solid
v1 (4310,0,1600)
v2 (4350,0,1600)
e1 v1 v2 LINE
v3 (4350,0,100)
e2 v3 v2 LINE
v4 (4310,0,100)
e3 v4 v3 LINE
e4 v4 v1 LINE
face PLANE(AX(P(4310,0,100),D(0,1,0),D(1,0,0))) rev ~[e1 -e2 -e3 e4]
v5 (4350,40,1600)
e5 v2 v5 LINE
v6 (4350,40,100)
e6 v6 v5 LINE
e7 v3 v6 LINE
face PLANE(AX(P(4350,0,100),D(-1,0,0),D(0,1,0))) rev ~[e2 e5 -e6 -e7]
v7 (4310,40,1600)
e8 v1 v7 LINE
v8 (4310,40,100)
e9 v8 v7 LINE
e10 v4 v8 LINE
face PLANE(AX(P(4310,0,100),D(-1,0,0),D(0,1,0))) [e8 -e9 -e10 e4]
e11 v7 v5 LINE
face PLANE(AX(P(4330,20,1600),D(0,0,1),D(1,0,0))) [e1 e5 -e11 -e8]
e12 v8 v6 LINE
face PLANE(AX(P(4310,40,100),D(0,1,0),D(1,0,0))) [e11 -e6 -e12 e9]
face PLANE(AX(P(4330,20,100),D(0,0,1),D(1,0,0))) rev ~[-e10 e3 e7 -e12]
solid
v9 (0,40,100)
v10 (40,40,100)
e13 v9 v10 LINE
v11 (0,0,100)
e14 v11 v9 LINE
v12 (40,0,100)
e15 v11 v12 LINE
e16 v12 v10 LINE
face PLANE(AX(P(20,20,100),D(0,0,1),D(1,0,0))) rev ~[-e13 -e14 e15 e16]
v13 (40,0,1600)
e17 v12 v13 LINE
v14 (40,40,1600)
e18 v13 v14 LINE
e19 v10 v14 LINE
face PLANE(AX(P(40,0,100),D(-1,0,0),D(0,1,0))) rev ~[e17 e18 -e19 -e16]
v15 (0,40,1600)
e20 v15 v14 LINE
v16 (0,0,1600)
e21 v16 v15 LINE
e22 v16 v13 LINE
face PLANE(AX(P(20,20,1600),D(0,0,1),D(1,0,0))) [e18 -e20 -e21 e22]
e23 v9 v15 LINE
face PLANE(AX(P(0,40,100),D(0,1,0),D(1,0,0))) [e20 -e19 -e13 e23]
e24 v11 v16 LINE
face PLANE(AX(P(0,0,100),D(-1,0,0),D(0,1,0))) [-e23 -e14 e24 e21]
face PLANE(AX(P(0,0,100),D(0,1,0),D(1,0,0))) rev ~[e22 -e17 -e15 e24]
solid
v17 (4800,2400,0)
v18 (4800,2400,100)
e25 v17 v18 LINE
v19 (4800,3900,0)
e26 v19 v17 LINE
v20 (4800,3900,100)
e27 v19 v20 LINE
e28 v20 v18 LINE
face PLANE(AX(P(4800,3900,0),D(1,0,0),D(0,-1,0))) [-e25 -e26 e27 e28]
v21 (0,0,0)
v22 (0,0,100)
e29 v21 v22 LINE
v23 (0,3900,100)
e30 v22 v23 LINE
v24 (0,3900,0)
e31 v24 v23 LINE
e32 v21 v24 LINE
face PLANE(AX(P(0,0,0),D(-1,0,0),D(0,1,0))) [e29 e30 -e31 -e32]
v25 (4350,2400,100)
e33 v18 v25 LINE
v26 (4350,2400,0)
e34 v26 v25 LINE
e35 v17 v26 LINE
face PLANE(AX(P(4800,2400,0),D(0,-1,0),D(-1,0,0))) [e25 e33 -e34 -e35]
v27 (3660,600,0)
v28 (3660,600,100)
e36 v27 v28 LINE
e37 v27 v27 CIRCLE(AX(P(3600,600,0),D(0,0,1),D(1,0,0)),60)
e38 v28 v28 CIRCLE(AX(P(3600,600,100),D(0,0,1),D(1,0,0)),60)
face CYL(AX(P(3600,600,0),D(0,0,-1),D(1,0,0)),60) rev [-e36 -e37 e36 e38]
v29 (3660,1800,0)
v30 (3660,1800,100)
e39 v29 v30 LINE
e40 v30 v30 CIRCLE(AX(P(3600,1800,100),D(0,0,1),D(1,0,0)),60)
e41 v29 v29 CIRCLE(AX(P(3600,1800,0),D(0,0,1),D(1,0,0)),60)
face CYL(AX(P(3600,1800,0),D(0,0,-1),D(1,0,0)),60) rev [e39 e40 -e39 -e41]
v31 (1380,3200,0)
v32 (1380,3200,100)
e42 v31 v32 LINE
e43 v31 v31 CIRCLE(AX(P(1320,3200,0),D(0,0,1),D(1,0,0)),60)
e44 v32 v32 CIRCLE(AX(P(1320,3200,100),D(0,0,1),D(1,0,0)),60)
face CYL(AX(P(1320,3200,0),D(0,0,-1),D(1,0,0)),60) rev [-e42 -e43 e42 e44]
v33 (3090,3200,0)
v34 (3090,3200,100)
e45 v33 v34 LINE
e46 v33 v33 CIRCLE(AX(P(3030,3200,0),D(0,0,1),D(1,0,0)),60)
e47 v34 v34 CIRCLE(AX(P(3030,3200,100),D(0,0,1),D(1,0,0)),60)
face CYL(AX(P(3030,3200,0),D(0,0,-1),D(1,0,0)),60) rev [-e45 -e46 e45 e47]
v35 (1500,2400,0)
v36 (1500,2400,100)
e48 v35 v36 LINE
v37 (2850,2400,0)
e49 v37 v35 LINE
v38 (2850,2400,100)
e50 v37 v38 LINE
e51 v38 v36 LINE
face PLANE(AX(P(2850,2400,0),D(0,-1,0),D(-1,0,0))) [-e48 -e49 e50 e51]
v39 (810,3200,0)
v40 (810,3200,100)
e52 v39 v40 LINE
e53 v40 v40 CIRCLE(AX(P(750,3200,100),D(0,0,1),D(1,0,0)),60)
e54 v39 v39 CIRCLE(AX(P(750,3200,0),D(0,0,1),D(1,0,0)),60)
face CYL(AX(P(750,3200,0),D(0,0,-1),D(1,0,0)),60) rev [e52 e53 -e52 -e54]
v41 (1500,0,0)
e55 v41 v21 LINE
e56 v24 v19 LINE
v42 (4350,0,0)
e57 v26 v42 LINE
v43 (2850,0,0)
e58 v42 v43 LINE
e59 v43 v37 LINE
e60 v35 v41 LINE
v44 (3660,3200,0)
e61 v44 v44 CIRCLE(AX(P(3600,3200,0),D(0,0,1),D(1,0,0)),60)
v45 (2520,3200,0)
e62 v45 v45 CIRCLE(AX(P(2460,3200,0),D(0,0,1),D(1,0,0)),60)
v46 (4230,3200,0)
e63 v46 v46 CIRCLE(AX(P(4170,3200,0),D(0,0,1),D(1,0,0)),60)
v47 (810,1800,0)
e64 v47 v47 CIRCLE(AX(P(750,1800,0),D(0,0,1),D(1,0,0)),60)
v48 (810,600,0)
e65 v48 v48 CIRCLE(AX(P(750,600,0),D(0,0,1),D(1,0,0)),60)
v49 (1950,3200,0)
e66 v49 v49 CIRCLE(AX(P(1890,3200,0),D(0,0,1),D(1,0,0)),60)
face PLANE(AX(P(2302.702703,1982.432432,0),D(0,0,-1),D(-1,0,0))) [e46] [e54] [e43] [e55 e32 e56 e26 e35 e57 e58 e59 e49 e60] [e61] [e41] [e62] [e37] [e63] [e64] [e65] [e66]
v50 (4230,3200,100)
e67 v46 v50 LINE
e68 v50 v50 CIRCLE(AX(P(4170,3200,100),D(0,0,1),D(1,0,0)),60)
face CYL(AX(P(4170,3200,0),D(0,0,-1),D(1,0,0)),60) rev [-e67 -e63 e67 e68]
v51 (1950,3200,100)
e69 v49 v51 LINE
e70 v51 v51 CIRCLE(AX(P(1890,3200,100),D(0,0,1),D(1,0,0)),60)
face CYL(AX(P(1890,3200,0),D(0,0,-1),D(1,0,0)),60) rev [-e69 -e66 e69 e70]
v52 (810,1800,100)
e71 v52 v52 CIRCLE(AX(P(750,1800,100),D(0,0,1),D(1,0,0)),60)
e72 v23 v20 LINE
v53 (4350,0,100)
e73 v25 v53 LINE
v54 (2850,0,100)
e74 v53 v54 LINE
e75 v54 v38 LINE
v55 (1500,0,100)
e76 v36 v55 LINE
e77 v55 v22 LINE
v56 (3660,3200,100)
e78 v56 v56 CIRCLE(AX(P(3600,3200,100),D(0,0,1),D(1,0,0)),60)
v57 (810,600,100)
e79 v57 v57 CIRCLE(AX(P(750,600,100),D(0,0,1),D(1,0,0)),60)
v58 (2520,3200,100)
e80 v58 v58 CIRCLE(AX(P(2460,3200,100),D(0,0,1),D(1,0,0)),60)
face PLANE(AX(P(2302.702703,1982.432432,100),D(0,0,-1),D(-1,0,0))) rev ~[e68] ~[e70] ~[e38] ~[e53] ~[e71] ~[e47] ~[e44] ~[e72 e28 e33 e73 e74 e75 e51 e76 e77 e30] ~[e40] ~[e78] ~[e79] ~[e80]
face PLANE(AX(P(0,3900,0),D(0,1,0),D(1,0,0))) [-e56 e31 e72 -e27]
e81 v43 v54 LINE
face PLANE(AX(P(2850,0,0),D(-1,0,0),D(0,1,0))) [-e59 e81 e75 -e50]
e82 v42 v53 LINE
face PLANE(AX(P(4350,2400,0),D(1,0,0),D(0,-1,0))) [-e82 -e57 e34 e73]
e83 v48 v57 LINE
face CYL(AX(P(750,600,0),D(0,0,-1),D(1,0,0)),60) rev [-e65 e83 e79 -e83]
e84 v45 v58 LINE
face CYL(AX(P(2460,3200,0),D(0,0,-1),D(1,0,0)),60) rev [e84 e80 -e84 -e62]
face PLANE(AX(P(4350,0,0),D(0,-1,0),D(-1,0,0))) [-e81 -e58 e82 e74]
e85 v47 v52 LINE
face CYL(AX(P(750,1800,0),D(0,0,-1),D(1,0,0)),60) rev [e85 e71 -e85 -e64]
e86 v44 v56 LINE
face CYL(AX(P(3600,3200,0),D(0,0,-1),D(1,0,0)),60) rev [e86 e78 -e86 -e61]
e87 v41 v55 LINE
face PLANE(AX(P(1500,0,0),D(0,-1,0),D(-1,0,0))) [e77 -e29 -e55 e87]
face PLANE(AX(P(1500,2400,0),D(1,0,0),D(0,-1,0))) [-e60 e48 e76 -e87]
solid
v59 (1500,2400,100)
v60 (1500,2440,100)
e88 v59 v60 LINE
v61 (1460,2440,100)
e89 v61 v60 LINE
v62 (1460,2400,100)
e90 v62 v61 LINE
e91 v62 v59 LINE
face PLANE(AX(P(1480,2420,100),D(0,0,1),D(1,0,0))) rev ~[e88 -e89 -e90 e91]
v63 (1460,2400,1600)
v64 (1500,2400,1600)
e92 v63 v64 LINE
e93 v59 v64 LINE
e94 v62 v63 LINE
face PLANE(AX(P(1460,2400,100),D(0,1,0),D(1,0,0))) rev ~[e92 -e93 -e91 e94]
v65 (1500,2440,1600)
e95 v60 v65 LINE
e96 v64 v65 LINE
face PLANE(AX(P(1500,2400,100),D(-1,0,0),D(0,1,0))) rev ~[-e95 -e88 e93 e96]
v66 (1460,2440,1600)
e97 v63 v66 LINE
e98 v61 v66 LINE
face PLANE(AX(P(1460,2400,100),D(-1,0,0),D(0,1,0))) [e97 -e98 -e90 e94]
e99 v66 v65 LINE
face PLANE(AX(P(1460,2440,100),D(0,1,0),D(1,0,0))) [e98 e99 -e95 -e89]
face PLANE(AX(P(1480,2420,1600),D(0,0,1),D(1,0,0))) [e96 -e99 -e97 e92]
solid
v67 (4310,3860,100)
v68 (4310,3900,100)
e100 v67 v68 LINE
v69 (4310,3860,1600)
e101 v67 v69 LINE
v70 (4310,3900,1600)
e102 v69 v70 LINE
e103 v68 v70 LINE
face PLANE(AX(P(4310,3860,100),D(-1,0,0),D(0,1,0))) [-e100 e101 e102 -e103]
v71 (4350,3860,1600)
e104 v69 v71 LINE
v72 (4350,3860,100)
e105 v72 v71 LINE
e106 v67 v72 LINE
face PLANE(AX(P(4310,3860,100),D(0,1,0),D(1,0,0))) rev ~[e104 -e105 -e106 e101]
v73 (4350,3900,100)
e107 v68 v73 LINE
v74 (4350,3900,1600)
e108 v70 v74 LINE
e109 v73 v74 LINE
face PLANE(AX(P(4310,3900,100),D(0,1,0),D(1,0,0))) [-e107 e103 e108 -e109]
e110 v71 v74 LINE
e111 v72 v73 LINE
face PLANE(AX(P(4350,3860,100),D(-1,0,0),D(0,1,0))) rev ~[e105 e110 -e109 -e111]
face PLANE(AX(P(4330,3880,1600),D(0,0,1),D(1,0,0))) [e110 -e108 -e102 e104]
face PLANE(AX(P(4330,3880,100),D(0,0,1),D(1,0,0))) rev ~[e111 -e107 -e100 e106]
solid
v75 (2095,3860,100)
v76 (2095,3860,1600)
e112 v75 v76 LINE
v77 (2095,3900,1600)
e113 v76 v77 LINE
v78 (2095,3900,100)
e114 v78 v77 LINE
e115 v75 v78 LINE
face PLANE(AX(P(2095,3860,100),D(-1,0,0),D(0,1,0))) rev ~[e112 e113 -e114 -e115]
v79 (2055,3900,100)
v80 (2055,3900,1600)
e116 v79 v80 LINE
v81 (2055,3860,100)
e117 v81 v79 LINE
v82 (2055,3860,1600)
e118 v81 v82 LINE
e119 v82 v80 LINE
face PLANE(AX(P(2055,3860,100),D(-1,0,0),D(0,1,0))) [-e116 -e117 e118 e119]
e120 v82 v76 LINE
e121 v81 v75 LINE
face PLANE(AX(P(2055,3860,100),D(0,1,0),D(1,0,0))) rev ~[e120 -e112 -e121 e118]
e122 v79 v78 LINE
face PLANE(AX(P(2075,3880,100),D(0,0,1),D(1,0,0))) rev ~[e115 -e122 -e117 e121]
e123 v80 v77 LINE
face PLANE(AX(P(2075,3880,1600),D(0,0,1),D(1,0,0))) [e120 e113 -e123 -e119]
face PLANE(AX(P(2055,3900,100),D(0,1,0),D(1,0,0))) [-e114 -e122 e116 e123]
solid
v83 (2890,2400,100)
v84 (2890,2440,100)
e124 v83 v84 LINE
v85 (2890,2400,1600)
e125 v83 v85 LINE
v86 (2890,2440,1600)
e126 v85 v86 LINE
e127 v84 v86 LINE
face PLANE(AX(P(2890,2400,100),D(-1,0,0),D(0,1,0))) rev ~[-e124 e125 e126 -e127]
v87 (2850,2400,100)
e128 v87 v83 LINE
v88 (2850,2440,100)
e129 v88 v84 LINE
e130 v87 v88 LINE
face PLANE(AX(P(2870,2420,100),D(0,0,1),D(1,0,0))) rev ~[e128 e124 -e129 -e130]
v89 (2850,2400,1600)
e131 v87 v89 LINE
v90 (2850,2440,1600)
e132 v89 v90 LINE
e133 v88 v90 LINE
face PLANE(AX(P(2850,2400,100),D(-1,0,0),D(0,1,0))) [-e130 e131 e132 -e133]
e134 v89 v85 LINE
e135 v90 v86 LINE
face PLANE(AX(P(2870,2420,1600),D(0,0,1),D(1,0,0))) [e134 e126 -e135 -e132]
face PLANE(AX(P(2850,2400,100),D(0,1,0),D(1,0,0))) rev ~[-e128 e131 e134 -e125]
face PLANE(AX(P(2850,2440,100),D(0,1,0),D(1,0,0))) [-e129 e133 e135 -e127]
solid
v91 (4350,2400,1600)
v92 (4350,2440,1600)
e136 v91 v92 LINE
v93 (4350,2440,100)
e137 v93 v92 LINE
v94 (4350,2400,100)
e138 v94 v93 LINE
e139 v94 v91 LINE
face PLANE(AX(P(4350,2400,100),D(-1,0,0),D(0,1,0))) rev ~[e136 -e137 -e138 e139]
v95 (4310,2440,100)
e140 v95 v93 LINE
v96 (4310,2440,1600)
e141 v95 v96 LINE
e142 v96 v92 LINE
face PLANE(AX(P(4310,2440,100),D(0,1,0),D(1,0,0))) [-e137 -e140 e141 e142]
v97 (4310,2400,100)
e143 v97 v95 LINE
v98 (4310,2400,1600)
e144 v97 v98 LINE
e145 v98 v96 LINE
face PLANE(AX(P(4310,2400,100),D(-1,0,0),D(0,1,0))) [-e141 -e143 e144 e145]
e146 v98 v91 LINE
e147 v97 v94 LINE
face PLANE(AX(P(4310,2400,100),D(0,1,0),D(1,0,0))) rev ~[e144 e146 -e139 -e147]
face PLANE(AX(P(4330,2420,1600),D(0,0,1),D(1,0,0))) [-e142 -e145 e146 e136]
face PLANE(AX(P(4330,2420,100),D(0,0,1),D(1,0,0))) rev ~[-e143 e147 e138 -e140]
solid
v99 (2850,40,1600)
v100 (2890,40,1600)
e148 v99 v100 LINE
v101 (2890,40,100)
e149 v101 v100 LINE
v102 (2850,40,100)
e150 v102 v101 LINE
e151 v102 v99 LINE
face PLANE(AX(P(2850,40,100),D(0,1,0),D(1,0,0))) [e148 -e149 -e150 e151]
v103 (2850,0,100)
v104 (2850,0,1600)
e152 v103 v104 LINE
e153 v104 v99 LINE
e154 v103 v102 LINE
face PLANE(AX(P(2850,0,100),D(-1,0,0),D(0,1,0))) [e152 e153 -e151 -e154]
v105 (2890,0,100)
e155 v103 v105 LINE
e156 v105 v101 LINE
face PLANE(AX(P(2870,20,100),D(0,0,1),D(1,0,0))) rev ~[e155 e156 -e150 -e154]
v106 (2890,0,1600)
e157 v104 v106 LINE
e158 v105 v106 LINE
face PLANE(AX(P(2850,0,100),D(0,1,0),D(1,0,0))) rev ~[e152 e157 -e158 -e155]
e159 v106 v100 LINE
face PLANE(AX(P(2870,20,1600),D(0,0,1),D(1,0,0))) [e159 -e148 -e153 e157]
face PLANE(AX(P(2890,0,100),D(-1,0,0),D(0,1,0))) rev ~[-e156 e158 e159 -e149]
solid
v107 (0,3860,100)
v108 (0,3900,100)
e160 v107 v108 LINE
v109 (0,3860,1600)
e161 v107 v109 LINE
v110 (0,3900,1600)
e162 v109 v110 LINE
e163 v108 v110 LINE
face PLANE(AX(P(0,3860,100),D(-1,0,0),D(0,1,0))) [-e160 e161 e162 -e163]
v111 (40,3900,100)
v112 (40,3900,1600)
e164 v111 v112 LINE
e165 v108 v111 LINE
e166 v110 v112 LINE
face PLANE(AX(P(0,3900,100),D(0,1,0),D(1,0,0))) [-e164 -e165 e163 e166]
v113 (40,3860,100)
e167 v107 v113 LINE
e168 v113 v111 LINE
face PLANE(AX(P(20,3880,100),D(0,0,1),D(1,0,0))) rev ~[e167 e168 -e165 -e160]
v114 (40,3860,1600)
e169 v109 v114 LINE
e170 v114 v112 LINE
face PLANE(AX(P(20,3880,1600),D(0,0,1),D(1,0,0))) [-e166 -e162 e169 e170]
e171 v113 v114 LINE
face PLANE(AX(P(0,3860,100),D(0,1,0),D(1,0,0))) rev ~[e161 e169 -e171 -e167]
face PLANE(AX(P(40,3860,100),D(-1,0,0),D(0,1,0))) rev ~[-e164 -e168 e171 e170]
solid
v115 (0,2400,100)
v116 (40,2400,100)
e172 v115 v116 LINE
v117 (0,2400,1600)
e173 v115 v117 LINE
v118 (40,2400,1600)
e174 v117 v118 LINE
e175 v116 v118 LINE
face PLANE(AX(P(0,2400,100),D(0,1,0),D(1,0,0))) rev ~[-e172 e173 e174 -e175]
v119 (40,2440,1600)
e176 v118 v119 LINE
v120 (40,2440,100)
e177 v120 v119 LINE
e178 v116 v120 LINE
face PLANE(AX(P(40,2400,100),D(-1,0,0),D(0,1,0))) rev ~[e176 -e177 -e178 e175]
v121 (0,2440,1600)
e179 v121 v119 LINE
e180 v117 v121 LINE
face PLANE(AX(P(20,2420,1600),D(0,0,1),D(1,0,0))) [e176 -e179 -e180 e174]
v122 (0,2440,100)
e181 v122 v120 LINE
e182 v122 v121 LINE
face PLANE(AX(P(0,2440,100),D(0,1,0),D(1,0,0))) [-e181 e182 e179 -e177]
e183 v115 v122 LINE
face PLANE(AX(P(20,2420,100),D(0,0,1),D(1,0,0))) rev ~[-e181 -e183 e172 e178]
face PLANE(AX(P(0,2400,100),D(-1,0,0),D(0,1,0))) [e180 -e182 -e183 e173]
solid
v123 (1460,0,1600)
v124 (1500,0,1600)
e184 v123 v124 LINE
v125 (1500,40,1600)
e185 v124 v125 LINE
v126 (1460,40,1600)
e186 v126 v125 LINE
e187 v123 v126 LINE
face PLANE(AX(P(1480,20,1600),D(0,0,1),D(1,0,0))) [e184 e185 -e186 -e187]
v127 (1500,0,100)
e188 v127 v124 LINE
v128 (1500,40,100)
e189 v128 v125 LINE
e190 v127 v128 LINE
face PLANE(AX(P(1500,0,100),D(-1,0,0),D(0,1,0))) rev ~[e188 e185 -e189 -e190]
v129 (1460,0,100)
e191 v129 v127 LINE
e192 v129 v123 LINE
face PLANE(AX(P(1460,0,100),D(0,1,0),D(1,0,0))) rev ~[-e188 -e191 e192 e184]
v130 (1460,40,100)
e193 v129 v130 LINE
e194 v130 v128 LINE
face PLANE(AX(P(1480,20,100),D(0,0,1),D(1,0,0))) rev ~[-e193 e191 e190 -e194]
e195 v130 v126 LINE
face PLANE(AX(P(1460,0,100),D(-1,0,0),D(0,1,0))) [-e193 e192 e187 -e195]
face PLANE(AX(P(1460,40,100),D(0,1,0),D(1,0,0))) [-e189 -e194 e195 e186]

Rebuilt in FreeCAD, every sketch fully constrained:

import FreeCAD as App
import Part
import Sketcher

doc = App.newDocument("Part")
body = doc.addObject("PartDesign::Body", "Body")

sketch1 = body.newObject("Sketcher::SketchObject", "Sketch")
sketch1.AttachmentSupport = (doc.getObject("XY_Plane"), [""])
sketch1.MapMode = "FlatFace"
sketch1.addGeometry(Part.LineSegment(App.Vector(0, 3900, 0), App.Vector(0, 0, 0)), False)
sketch1.addGeometry(Part.LineSegment(App.Vector(0, 0, 0), App.Vector(1500, 0, 0)), False)
sketch1.addGeometry(Part.LineSegment(App.Vector(1500, 0, 0), App.Vector(1500, 2400, 0)), False)
sketch1.addGeometry(Part.LineSegment(App.Vector(1500, 2400, 0), App.Vector(2850, 2400, 0)), False)
sketch1.addGeometry(Part.LineSegment(App.Vector(2850, 2400, 0), App.Vector(2850, 0, 0)), False)
sketch1.addGeometry(Part.LineSegment(App.Vector(2850, 0, 0), App.Vector(4350, 0, 0)), False)
sketch1.addGeometry(Part.LineSegment(App.Vector(4350, 0, 0), App.Vector(4350, 2400, 0)), False)
sketch1.addGeometry(Part.LineSegment(App.Vector(4350, 2400, 0), App.Vector(4800, 2400, 0)), False)
sketch1.addGeometry(Part.LineSegment(App.Vector(4800, 2400, 0), App.Vector(4800, 3900, 0)), False)
sketch1.addGeometry(Part.LineSegment(App.Vector(4800, 3900, 0), App.Vector(0, 3900, 0)), False)
sketch1.addGeometry(Part.Circle(App.Vector(3600, 600, 0), App.Vector(0, 0, 1), 60), False)
sketch1.addGeometry(Part.Circle(App.Vector(3600, 1800, 0), App.Vector(0, 0, 1), 60), False)
sketch1.addGeometry(Part.Circle(App.Vector(750, 600, 0), App.Vector(0, 0, 1), 60), False)
sketch1.addGeometry(Part.Circle(App.Vector(750, 1800, 0), App.Vector(0, 0, 1), 60), False)
sketch1.addGeometry(Part.Circle(App.Vector(4170, 3200, 0), App.Vector(0, 0, 1), 60), False)
sketch1.addGeometry(Part.Circle(App.Vector(3600, 3200, 0), App.Vector(0, 0, 1), 60), False)
sketch1.addGeometry(Part.Circle(App.Vector(3030, 3200, 0), App.Vector(0, 0, 1), 60), False)
sketch1.addGeometry(Part.Circle(App.Vector(2460, 3200, 0), App.Vector(0, 0, 1), 60), False)
sketch1.addGeometry(Part.Circle(App.Vector(1890, 3200, 0), App.Vector(0, 0, 1), 60), False)
sketch1.addGeometry(Part.Circle(App.Vector(1320, 3200, 0), App.Vector(0, 0, 1), 60), False)
sketch1.addGeometry(Part.Circle(App.Vector(750, 3200, 0), App.Vector(0, 0, 1), 60), False)
sketch1.addConstraint(Sketcher.Constraint("Coincident", 0, 2, 1, 1))
sketch1.addConstraint(Sketcher.Constraint("Coincident", 1, 2, 2, 1))
sketch1.addConstraint(Sketcher.Constraint("Coincident", 2, 2, 3, 1))
sketch1.addConstraint(Sketcher.Constraint("Coincident", 3, 2, 4, 1))
sketch1.addConstraint(Sketcher.Constraint("Coincident", 4, 2, 5, 1))
sketch1.addConstraint(Sketcher.Constraint("Coincident", 5, 2, 6, 1))
sketch1.addConstraint(Sketcher.Constraint("Coincident", 6, 2, 7, 1))
sketch1.addConstraint(Sketcher.Constraint("Coincident", 7, 2, 8, 1))
sketch1.addConstraint(Sketcher.Constraint("Coincident", 8, 2, 9, 1))
sketch1.addConstraint(Sketcher.Constraint("Coincident", 9, 2, 0, 1))
sketch1.addConstraint(Sketcher.Constraint("Vertical", 0))
sketch1.addConstraint(Sketcher.Constraint("Horizontal", 1))
sketch1.addConstraint(Sketcher.Constraint("Vertical", 2))
sketch1.addConstraint(Sketcher.Constraint("Horizontal", 3))
sketch1.addConstraint(Sketcher.Constraint("Vertical", 4))
sketch1.addConstraint(Sketcher.Constraint("Horizontal", 5))
sketch1.addConstraint(Sketcher.Constraint("Vertical", 6))
sketch1.addConstraint(Sketcher.Constraint("Horizontal", 7))
sketch1.addConstraint(Sketcher.Constraint("Vertical", 8))
sketch1.addConstraint(Sketcher.Constraint("Horizontal", 9))
sketch1.addConstraint(Sketcher.Constraint("Coincident", 0, 2, -1, 1))
sketch1.addConstraint(Sketcher.Constraint("Equal", 10, 11))
sketch1.addConstraint(Sketcher.Constraint("Equal", 11, 12))
sketch1.addConstraint(Sketcher.Constraint("Equal", 12, 13))
sketch1.addConstraint(Sketcher.Constraint("Equal", 13, 14))
sketch1.addConstraint(Sketcher.Constraint("Equal", 14, 15))
sketch1.addConstraint(Sketcher.Constraint("Equal", 15, 16))
sketch1.addConstraint(Sketcher.Constraint("Equal", 16, 17))
sketch1.addConstraint(Sketcher.Constraint("Equal", 17, 18))
sketch1.addConstraint(Sketcher.Constraint("Equal", 18, 19))
sketch1.addConstraint(Sketcher.Constraint("Equal", 19, 20))
sketch1.addConstraint(Sketcher.Constraint("PointOnObject", 4, 2, -1))
sketch1.addConstraint(Sketcher.Constraint("Horizontal", 10, 3, 12, 3))
sketch1.addConstraint(Sketcher.Constraint("Horizontal", 11, 3, 13, 3))
sketch1.addConstraint(Sketcher.Constraint("Horizontal", 14, 3, 15, 3))
sketch1.addConstraint(Sketcher.Constraint("Horizontal", 15, 3, 16, 3))
sketch1.addConstraint(Sketcher.Constraint("Horizontal", 16, 3, 17, 3))
sketch1.addConstraint(Sketcher.Constraint("Horizontal", 17, 3, 18, 3))
sketch1.addConstraint(Sketcher.Constraint("Horizontal", 18, 3, 19, 3))
sketch1.addConstraint(Sketcher.Constraint("Horizontal", 19, 3, 20, 3))
sketch1.addConstraint(Sketcher.Constraint("Horizontal", 3, 2, 6, 2))
sketch1.addConstraint(Sketcher.Constraint("Vertical", 10, 3, 11, 3))
sketch1.addConstraint(Sketcher.Constraint("Vertical", 12, 3, 13, 3))
sketch1.addConstraint(Sketcher.Constraint("Vertical", 11, 3, 15, 3))
sketch1.addConstraint(Sketcher.Constraint("Vertical", 13, 3, 20, 3))
sketch1.addConstraint(Sketcher.Constraint("Equal", 1, 5))
sketch1.addConstraint(Sketcher.Constraint("Equal", 5, 8))
sketch1.addConstraint(Sketcher.Constraint("Diameter", 10, 120.0))
sketch1.addConstraint(Sketcher.Constraint("DistanceX", 1, 1, 1, 2, 1500.0))
sketch1.addConstraint(Sketcher.Constraint("DistanceX", 3, 1, 3, 2, 1350.0))
sketch1.addConstraint(Sketcher.Constraint("DistanceX", 7, 1, 7, 2, 450.0))
sketch1.addConstraint(Sketcher.Constraint("DistanceY", 0, 2, 0, 1, 3900.0))
sketch1.addConstraint(Sketcher.Constraint("DistanceX", -1, 1, 10, 3, 3600.0))
sketch1.addConstraint(Sketcher.Constraint("DistanceY", -1, 1, 10, 3, 600.0))
sketch1.addConstraint(Sketcher.Constraint("DistanceY", -1, 1, 11, 3, 1800.0))
sketch1.addConstraint(Sketcher.Constraint("DistanceX", -1, 1, 12, 3, 750.0))
sketch1.addConstraint(Sketcher.Constraint("DistanceX", -1, 1, 14, 3, 4170.0))
sketch1.addConstraint(Sketcher.Constraint("DistanceY", -1, 1, 14, 3, 3200.0))
sketch1.addConstraint(Sketcher.Constraint("DistanceX", -1, 1, 16, 3, 3030.0))
sketch1.addConstraint(Sketcher.Constraint("DistanceX", -1, 1, 17, 3, 2460.0))
sketch1.addConstraint(Sketcher.Constraint("DistanceX", -1, 1, 18, 3, 1890.0))
sketch1.addConstraint(Sketcher.Constraint("DistanceX", -1, 1, 19, 3, 1320.0))
pad1 = body.newObject("PartDesign::Pad", "Pad")
pad1.Profile = sketch1
pad1.Length = 100
body2 = doc.addObject("PartDesign::Body", "Body001")

sketch2 = body2.newObject("Sketcher::SketchObject", "Sketch001")
sketch2.AttachmentSupport = (doc.getObject("XY_Plane001"), [""])
sketch2.MapMode = "FlatFace"
sketch2.AttachmentOffset = App.Placement(App.Vector(0, 0, 100), App.Rotation())
sketch2.addGeometry(Part.LineSegment(App.Vector(2850, 2440, 0), App.Vector(2850, 2400, 0)), False)
sketch2.addGeometry(Part.LineSegment(App.Vector(2850, 2400, 0), App.Vector(2890, 2400, 0)), False)
sketch2.addGeometry(Part.LineSegment(App.Vector(2890, 2400, 0), App.Vector(2890, 2440, 0)), False)
sketch2.addGeometry(Part.LineSegment(App.Vector(2890, 2440, 0), App.Vector(2850, 2440, 0)), False)
sketch2.addConstraint(Sketcher.Constraint("Coincident", 0, 2, 1, 1))
sketch2.addConstraint(Sketcher.Constraint("Coincident", 1, 2, 2, 1))
sketch2.addConstraint(Sketcher.Constraint("Coincident", 2, 2, 3, 1))
sketch2.addConstraint(Sketcher.Constraint("Coincident", 3, 2, 0, 1))
sketch2.addConstraint(Sketcher.Constraint("Vertical", 0))
sketch2.addConstraint(Sketcher.Constraint("Horizontal", 1))
sketch2.addConstraint(Sketcher.Constraint("Vertical", 2))
sketch2.addConstraint(Sketcher.Constraint("Horizontal", 3))
sketch2.addConstraint(Sketcher.Constraint("Equal", 3, 0))
sketch2.addConstraint(Sketcher.Constraint("DistanceX", 1, 1, 1, 2, 40.0))
sketch2.addConstraint(Sketcher.Constraint("DistanceX", -1, 1, 0, 2, 2850.0))
sketch2.addConstraint(Sketcher.Constraint("DistanceY", -1, 1, 0, 2, 2400.0))
pad2 = body2.newObject("PartDesign::Pad", "Pad001")
pad2.Profile = sketch2
pad2.Length = 1500
body3 = doc.addObject("PartDesign::Body", "Body002")

sketch3 = body3.newObject("Sketcher::SketchObject", "Sketch002")
sketch3.AttachmentSupport = (doc.getObject("XY_Plane002"), [""])
sketch3.MapMode = "FlatFace"
sketch3.AttachmentOffset = App.Placement(App.Vector(0, 0, 100), App.Rotation())
sketch3.addGeometry(Part.LineSegment(App.Vector(0, 3900, 0), App.Vector(0, 3860, 0)), False)
sketch3.addGeometry(Part.LineSegment(App.Vector(0, 3860, 0), App.Vector(40, 3860, 0)), False)
sketch3.addGeometry(Part.LineSegment(App.Vector(40, 3860, 0), App.Vector(40, 3900, 0)), False)
sketch3.addGeometry(Part.LineSegment(App.Vector(40, 3900, 0), App.Vector(0, 3900, 0)), False)
sketch3.addConstraint(Sketcher.Constraint("Coincident", 0, 2, 1, 1))
sketch3.addConstraint(Sketcher.Constraint("Coincident", 1, 2, 2, 1))
sketch3.addConstraint(Sketcher.Constraint("Coincident", 2, 2, 3, 1))
sketch3.addConstraint(Sketcher.Constraint("Coincident", 3, 2, 0, 1))
sketch3.addConstraint(Sketcher.Constraint("Vertical", 0))
sketch3.addConstraint(Sketcher.Constraint("Horizontal", 1))
sketch3.addConstraint(Sketcher.Constraint("Vertical", 2))
sketch3.addConstraint(Sketcher.Constraint("Horizontal", 3))
sketch3.addConstraint(Sketcher.Constraint("PointOnObject", 0, 2, -2))
sketch3.addConstraint(Sketcher.Constraint("Equal", 3, 0))
sketch3.addConstraint(Sketcher.Constraint("DistanceX", 1, 1, 1, 2, 40.0))
sketch3.addConstraint(Sketcher.Constraint("DistanceY", -1, 1, 0, 2, 3860.0))
pad3 = body3.newObject("PartDesign::Pad", "Pad002")
pad3.Profile = sketch3
pad3.Length = 1500
body4 = doc.addObject("PartDesign::Body", "Body003")

sketch4 = body4.newObject("Sketcher::SketchObject", "Sketch003")
sketch4.AttachmentSupport = (doc.getObject("XY_Plane003"), [""])
sketch4.MapMode = "FlatFace"
sketch4.AttachmentOffset = App.Placement(App.Vector(0, 0, 100), App.Rotation())
sketch4.addGeometry(Part.LineSegment(App.Vector(0, 40, 0), App.Vector(0, 0, 0)), False)
sketch4.addGeometry(Part.LineSegment(App.Vector(0, 0, 0), App.Vector(40, 0, 0)), False)
sketch4.addGeometry(Part.LineSegment(App.Vector(40, 0, 0), App.Vector(40, 40, 0)), False)
sketch4.addGeometry(Part.LineSegment(App.Vector(40, 40, 0), App.Vector(0, 40, 0)), False)
sketch4.addConstraint(Sketcher.Constraint("Coincident", 0, 2, 1, 1))
sketch4.addConstraint(Sketcher.Constraint("Coincident", 1, 2, 2, 1))
sketch4.addConstraint(Sketcher.Constraint("Coincident", 2, 2, 3, 1))
sketch4.addConstraint(Sketcher.Constraint("Coincident", 3, 2, 0, 1))
sketch4.addConstraint(Sketcher.Constraint("Vertical", 0))
sketch4.addConstraint(Sketcher.Constraint("Horizontal", 1))
sketch4.addConstraint(Sketcher.Constraint("Vertical", 2))
sketch4.addConstraint(Sketcher.Constraint("Horizontal", 3))
sketch4.addConstraint(Sketcher.Constraint("Coincident", 0, 2, -1, 1))
sketch4.addConstraint(Sketcher.Constraint("Equal", 3, 0))
sketch4.addConstraint(Sketcher.Constraint("DistanceX", 1, 1, 1, 2, 40.0))
pad4 = body4.newObject("PartDesign::Pad", "Pad003")
pad4.Profile = sketch4
pad4.Length = 1500
body5 = doc.addObject("PartDesign::Body", "Body004")

sketch5 = body5.newObject("Sketcher::SketchObject", "Sketch004")
sketch5.AttachmentSupport = (doc.getObject("XY_Plane004"), [""])
sketch5.MapMode = "FlatFace"
sketch5.AttachmentOffset = App.Placement(App.Vector(0, 0, 100), App.Rotation())
sketch5.addGeometry(Part.LineSegment(App.Vector(1460, 40, 0), App.Vector(1460, 0, 0)), False)
sketch5.addGeometry(Part.LineSegment(App.Vector(1460, 0, 0), App.Vector(1500, 0, 0)), False)
sketch5.addGeometry(Part.LineSegment(App.Vector(1500, 0, 0), App.Vector(1500, 40, 0)), False)
sketch5.addGeometry(Part.LineSegment(App.Vector(1500, 40, 0), App.Vector(1460, 40, 0)), False)
sketch5.addConstraint(Sketcher.Constraint("Coincident", 0, 2, 1, 1))
sketch5.addConstraint(Sketcher.Constraint("Coincident", 1, 2, 2, 1))
sketch5.addConstraint(Sketcher.Constraint("Coincident", 2, 2, 3, 1))
sketch5.addConstraint(Sketcher.Constraint("Coincident", 3, 2, 0, 1))
sketch5.addConstraint(Sketcher.Constraint("Vertical", 0))
sketch5.addConstraint(Sketcher.Constraint("Horizontal", 1))
sketch5.addConstraint(Sketcher.Constraint("Vertical", 2))
sketch5.addConstraint(Sketcher.Constraint("Horizontal", 3))
sketch5.addConstraint(Sketcher.Constraint("PointOnObject", 0, 2, -1))
sketch5.addConstraint(Sketcher.Constraint("Equal", 3, 0))
sketch5.addConstraint(Sketcher.Constraint("DistanceX", 1, 1, 1, 2, 40.0))
sketch5.addConstraint(Sketcher.Constraint("DistanceX", -1, 1, 0, 2, 1460.0))
pad5 = body5.newObject("PartDesign::Pad", "Pad004")
pad5.Profile = sketch5
pad5.Length = 1500
body6 = doc.addObject("PartDesign::Body", "Body005")

sketch6 = body6.newObject("Sketcher::SketchObject", "Sketch005")
sketch6.AttachmentSupport = (doc.getObject("XY_Plane005"), [""])
sketch6.MapMode = "FlatFace"
sketch6.AttachmentOffset = App.Placement(App.Vector(0, 0, 100), App.Rotation())
sketch6.addGeometry(Part.LineSegment(App.Vector(1460, 2440, 0), App.Vector(1460, 2400, 0)), False)
sketch6.addGeometry(Part.LineSegment(App.Vector(1460, 2400, 0), App.Vector(1500, 2400, 0)), False)
sketch6.addGeometry(Part.LineSegment(App.Vector(1500, 2400, 0), App.Vector(1500, 2440, 0)), False)
sketch6.addGeometry(Part.LineSegment(App.Vector(1500, 2440, 0), App.Vector(1460, 2440, 0)), False)
sketch6.addConstraint(Sketcher.Constraint("Coincident", 0, 2, 1, 1))
sketch6.addConstraint(Sketcher.Constraint("Coincident", 1, 2, 2, 1))
sketch6.addConstraint(Sketcher.Constraint("Coincident", 2, 2, 3, 1))
sketch6.addConstraint(Sketcher.Constraint("Coincident", 3, 2, 0, 1))
sketch6.addConstraint(Sketcher.Constraint("Vertical", 0))
sketch6.addConstraint(Sketcher.Constraint("Horizontal", 1))
sketch6.addConstraint(Sketcher.Constraint("Vertical", 2))
sketch6.addConstraint(Sketcher.Constraint("Horizontal", 3))
sketch6.addConstraint(Sketcher.Constraint("Equal", 3, 0))
sketch6.addConstraint(Sketcher.Constraint("DistanceX", 1, 1, 1, 2, 40.0))
sketch6.addConstraint(Sketcher.Constraint("DistanceX", -1, 1, 0, 2, 1460.0))
sketch6.addConstraint(Sketcher.Constraint("DistanceY", -1, 1, 0, 2, 2400.0))
pad6 = body6.newObject("PartDesign::Pad", "Pad005")
pad6.Profile = sketch6
pad6.Length = 1500
body7 = doc.addObject("PartDesign::Body", "Body006")

sketch7 = body7.newObject("Sketcher::SketchObject", "Sketch006")
sketch7.AttachmentSupport = (doc.getObject("XY_Plane006"), [""])
sketch7.MapMode = "FlatFace"
sketch7.AttachmentOffset = App.Placement(App.Vector(0, 0, 100), App.Rotation())
sketch7.addGeometry(Part.LineSegment(App.Vector(4310, 40, 0), App.Vector(4310, 0, 0)), False)
sketch7.addGeometry(Part.LineSegment(App.Vector(4310, 0, 0), App.Vector(4350, 0, 0)), False)
sketch7.addGeometry(Part.LineSegment(App.Vector(4350, 0, 0), App.Vector(4350, 40, 0)), False)
sketch7.addGeometry(Part.LineSegment(App.Vector(4350, 40, 0), App.Vector(4310, 40, 0)), False)
sketch7.addConstraint(Sketcher.Constraint("Coincident", 0, 2, 1, 1))
sketch7.addConstraint(Sketcher.Constraint("Coincident", 1, 2, 2, 1))
sketch7.addConstraint(Sketcher.Constraint("Coincident", 2, 2, 3, 1))
sketch7.addConstraint(Sketcher.Constraint("Coincident", 3, 2, 0, 1))
sketch7.addConstraint(Sketcher.Constraint("Vertical", 0))
sketch7.addConstraint(Sketcher.Constraint("Horizontal", 1))
sketch7.addConstraint(Sketcher.Constraint("Vertical", 2))
sketch7.addConstraint(Sketcher.Constraint("Horizontal", 3))
sketch7.addConstraint(Sketcher.Constraint("PointOnObject", 0, 2, -1))
sketch7.addConstraint(Sketcher.Constraint("Equal", 3, 0))
sketch7.addConstraint(Sketcher.Constraint("DistanceX", 1, 1, 1, 2, 40.0))
sketch7.addConstraint(Sketcher.Constraint("DistanceX", -1, 1, 0, 2, 4310.0))
pad7 = body7.newObject("PartDesign::Pad", "Pad006")
pad7.Profile = sketch7
pad7.Length = 1500
body8 = doc.addObject("PartDesign::Body", "Body007")

sketch8 = body8.newObject("Sketcher::SketchObject", "Sketch007")
sketch8.AttachmentSupport = (doc.getObject("XY_Plane007"), [""])
sketch8.MapMode = "FlatFace"
sketch8.AttachmentOffset = App.Placement(App.Vector(0, 0, 100), App.Rotation())
sketch8.addGeometry(Part.LineSegment(App.Vector(2850, 40, 0), App.Vector(2850, 0, 0)), False)
sketch8.addGeometry(Part.LineSegment(App.Vector(2850, 0, 0), App.Vector(2890, 0, 0)), False)
sketch8.addGeometry(Part.LineSegment(App.Vector(2890, 0, 0), App.Vector(2890, 40, 0)), False)
sketch8.addGeometry(Part.LineSegment(App.Vector(2890, 40, 0), App.Vector(2850, 40, 0)), False)
sketch8.addConstraint(Sketcher.Constraint("Coincident", 0, 2, 1, 1))
sketch8.addConstraint(Sketcher.Constraint("Coincident", 1, 2, 2, 1))
sketch8.addConstraint(Sketcher.Constraint("Coincident", 2, 2, 3, 1))
sketch8.addConstraint(Sketcher.Constraint("Coincident", 3, 2, 0, 1))
sketch8.addConstraint(Sketcher.Constraint("Vertical", 0))
sketch8.addConstraint(Sketcher.Constraint("Horizontal", 1))
sketch8.addConstraint(Sketcher.Constraint("Vertical", 2))
sketch8.addConstraint(Sketcher.Constraint("Horizontal", 3))
sketch8.addConstraint(Sketcher.Constraint("PointOnObject", 0, 2, -1))
sketch8.addConstraint(Sketcher.Constraint("Equal", 3, 0))
sketch8.addConstraint(Sketcher.Constraint("DistanceX", 1, 1, 1, 2, 40.0))
sketch8.addConstraint(Sketcher.Constraint("DistanceX", -1, 1, 0, 2, 2850.0))
pad8 = body8.newObject("PartDesign::Pad", "Pad007")
pad8.Profile = sketch8
pad8.Length = 1500
body9 = doc.addObject("PartDesign::Body", "Body008")

sketch9 = body9.newObject("Sketcher::SketchObject", "Sketch008")
sketch9.AttachmentSupport = (doc.getObject("XY_Plane008"), [""])
sketch9.MapMode = "FlatFace"
sketch9.AttachmentOffset = App.Placement(App.Vector(0, 0, 100), App.Rotation())
sketch9.addGeometry(Part.LineSegment(App.Vector(4310, 2440, 0), App.Vector(4310, 2400, 0)), False)
sketch9.addGeometry(Part.LineSegment(App.Vector(4310, 2400, 0), App.Vector(4350, 2400, 0)), False)
sketch9.addGeometry(Part.LineSegment(App.Vector(4350, 2400, 0), App.Vector(4350, 2440, 0)), False)
sketch9.addGeometry(Part.LineSegment(App.Vector(4350, 2440, 0), App.Vector(4310, 2440, 0)), False)
sketch9.addConstraint(Sketcher.Constraint("Coincident", 0, 2, 1, 1))
sketch9.addConstraint(Sketcher.Constraint("Coincident", 1, 2, 2, 1))
sketch9.addConstraint(Sketcher.Constraint("Coincident", 2, 2, 3, 1))
sketch9.addConstraint(Sketcher.Constraint("Coincident", 3, 2, 0, 1))
sketch9.addConstraint(Sketcher.Constraint("Vertical", 0))
sketch9.addConstraint(Sketcher.Constraint("Horizontal", 1))
sketch9.addConstraint(Sketcher.Constraint("Vertical", 2))
sketch9.addConstraint(Sketcher.Constraint("Horizontal", 3))
sketch9.addConstraint(Sketcher.Constraint("Equal", 3, 0))
sketch9.addConstraint(Sketcher.Constraint("DistanceX", 1, 1, 1, 2, 40.0))
sketch9.addConstraint(Sketcher.Constraint("DistanceX", -1, 1, 0, 2, 4310.0))
sketch9.addConstraint(Sketcher.Constraint("DistanceY", -1, 1, 0, 2, 2400.0))
pad9 = body9.newObject("PartDesign::Pad", "Pad008")
pad9.Profile = sketch9
pad9.Length = 1500
body10 = doc.addObject("PartDesign::Body", "Body009")

sketch10 = body10.newObject("Sketcher::SketchObject", "Sketch009")
sketch10.AttachmentSupport = (doc.getObject("XY_Plane009"), [""])
sketch10.MapMode = "FlatFace"
sketch10.AttachmentOffset = App.Placement(App.Vector(0, 0, 100), App.Rotation())
sketch10.addGeometry(Part.LineSegment(App.Vector(4310, 3900, 0), App.Vector(4310, 3860, 0)), False)
sketch10.addGeometry(Part.LineSegment(App.Vector(4310, 3860, 0), App.Vector(4350, 3860, 0)), False)
sketch10.addGeometry(Part.LineSegment(App.Vector(4350, 3860, 0), App.Vector(4350, 3900, 0)), False)
sketch10.addGeometry(Part.LineSegment(App.Vector(4350, 3900, 0), App.Vector(4310, 3900, 0)), False)
sketch10.addConstraint(Sketcher.Constraint("Coincident", 0, 2, 1, 1))
sketch10.addConstraint(Sketcher.Constraint("Coincident", 1, 2, 2, 1))
sketch10.addConstraint(Sketcher.Constraint("Coincident", 2, 2, 3, 1))
sketch10.addConstraint(Sketcher.Constraint("Coincident", 3, 2, 0, 1))
sketch10.addConstraint(Sketcher.Constraint("Vertical", 0))
sketch10.addConstraint(Sketcher.Constraint("Horizontal", 1))
sketch10.addConstraint(Sketcher.Constraint("Vertical", 2))
sketch10.addConstraint(Sketcher.Constraint("Horizontal", 3))
sketch10.addConstraint(Sketcher.Constraint("Equal", 3, 0))
sketch10.addConstraint(Sketcher.Constraint("DistanceX", 1, 1, 1, 2, 40.0))
sketch10.addConstraint(Sketcher.Constraint("DistanceX", -1, 1, 0, 2, 4310.0))
sketch10.addConstraint(Sketcher.Constraint("DistanceY", -1, 1, 0, 2, 3860.0))
pad10 = body10.newObject("PartDesign::Pad", "Pad009")
pad10.Profile = sketch10
pad10.Length = 1500
body11 = doc.addObject("PartDesign::Body", "Body010")

sketch11 = body11.newObject("Sketcher::SketchObject", "Sketch010")
sketch11.AttachmentSupport = (doc.getObject("XY_Plane010"), [""])
sketch11.MapMode = "FlatFace"
sketch11.AttachmentOffset = App.Placement(App.Vector(0, 0, 100), App.Rotation())
sketch11.addGeometry(Part.LineSegment(App.Vector(2055, 3900, 0), App.Vector(2055, 3860, 0)), False)
sketch11.addGeometry(Part.LineSegment(App.Vector(2055, 3860, 0), App.Vector(2095, 3860, 0)), False)
sketch11.addGeometry(Part.LineSegment(App.Vector(2095, 3860, 0), App.Vector(2095, 3900, 0)), False)
sketch11.addGeometry(Part.LineSegment(App.Vector(2095, 3900, 0), App.Vector(2055, 3900, 0)), False)
sketch11.addConstraint(Sketcher.Constraint("Coincident", 0, 2, 1, 1))
sketch11.addConstraint(Sketcher.Constraint("Coincident", 1, 2, 2, 1))
sketch11.addConstraint(Sketcher.Constraint("Coincident", 2, 2, 3, 1))
sketch11.addConstraint(Sketcher.Constraint("Coincident", 3, 2, 0, 1))
sketch11.addConstraint(Sketcher.Constraint("Vertical", 0))
sketch11.addConstraint(Sketcher.Constraint("Horizontal", 1))
sketch11.addConstraint(Sketcher.Constraint("Vertical", 2))
sketch11.addConstraint(Sketcher.Constraint("Horizontal", 3))
sketch11.addConstraint(Sketcher.Constraint("Equal", 3, 0))
sketch11.addConstraint(Sketcher.Constraint("DistanceX", 1, 1, 1, 2, 40.0))
sketch11.addConstraint(Sketcher.Constraint("DistanceX", -1, 1, 0, 2, 2055.0))
sketch11.addConstraint(Sketcher.Constraint("DistanceY", -1, 1, 0, 2, 3860.0))
pad11 = body11.newObject("PartDesign::Pad", "Pad010")
pad11.Profile = sketch11
pad11.Length = 1500
body12 = doc.addObject("PartDesign::Body", "Body011")

sketch12 = body12.newObject("Sketcher::SketchObject", "Sketch011")
sketch12.AttachmentSupport = (doc.getObject("XY_Plane011"), [""])
sketch12.MapMode = "FlatFace"
sketch12.AttachmentOffset = App.Placement(App.Vector(0, 0, 100), App.Rotation())
sketch12.addGeometry(Part.LineSegment(App.Vector(0, 2440, 0), App.Vector(0, 2400, 0)), False)
sketch12.addGeometry(Part.LineSegment(App.Vector(0, 2400, 0), App.Vector(40, 2400, 0)), False)
sketch12.addGeometry(Part.LineSegment(App.Vector(40, 2400, 0), App.Vector(40, 2440, 0)), False)
sketch12.addGeometry(Part.LineSegment(App.Vector(40, 2440, 0), App.Vector(0, 2440, 0)), False)
sketch12.addConstraint(Sketcher.Constraint("Coincident", 0, 2, 1, 1))
sketch12.addConstraint(Sketcher.Constraint("Coincident", 1, 2, 2, 1))
sketch12.addConstraint(Sketcher.Constraint("Coincident", 2, 2, 3, 1))
sketch12.addConstraint(Sketcher.Constraint("Coincident", 3, 2, 0, 1))
sketch12.addConstraint(Sketcher.Constraint("Vertical", 0))
sketch12.addConstraint(Sketcher.Constraint("Horizontal", 1))
sketch12.addConstraint(Sketcher.Constraint("Vertical", 2))
sketch12.addConstraint(Sketcher.Constraint("Horizontal", 3))
sketch12.addConstraint(Sketcher.Constraint("PointOnObject", 0, 2, -2))
sketch12.addConstraint(Sketcher.Constraint("Equal", 3, 0))
sketch12.addConstraint(Sketcher.Constraint("DistanceX", 1, 1, 1, 2, 40.0))
sketch12.addConstraint(Sketcher.Constraint("DistanceY", -1, 1, 0, 2, 2400.0))
pad12 = body12.newObject("PartDesign::Pad", "Pad011")
pad12.Profile = sketch12
pad12.Length = 1500

doc.recompute()
